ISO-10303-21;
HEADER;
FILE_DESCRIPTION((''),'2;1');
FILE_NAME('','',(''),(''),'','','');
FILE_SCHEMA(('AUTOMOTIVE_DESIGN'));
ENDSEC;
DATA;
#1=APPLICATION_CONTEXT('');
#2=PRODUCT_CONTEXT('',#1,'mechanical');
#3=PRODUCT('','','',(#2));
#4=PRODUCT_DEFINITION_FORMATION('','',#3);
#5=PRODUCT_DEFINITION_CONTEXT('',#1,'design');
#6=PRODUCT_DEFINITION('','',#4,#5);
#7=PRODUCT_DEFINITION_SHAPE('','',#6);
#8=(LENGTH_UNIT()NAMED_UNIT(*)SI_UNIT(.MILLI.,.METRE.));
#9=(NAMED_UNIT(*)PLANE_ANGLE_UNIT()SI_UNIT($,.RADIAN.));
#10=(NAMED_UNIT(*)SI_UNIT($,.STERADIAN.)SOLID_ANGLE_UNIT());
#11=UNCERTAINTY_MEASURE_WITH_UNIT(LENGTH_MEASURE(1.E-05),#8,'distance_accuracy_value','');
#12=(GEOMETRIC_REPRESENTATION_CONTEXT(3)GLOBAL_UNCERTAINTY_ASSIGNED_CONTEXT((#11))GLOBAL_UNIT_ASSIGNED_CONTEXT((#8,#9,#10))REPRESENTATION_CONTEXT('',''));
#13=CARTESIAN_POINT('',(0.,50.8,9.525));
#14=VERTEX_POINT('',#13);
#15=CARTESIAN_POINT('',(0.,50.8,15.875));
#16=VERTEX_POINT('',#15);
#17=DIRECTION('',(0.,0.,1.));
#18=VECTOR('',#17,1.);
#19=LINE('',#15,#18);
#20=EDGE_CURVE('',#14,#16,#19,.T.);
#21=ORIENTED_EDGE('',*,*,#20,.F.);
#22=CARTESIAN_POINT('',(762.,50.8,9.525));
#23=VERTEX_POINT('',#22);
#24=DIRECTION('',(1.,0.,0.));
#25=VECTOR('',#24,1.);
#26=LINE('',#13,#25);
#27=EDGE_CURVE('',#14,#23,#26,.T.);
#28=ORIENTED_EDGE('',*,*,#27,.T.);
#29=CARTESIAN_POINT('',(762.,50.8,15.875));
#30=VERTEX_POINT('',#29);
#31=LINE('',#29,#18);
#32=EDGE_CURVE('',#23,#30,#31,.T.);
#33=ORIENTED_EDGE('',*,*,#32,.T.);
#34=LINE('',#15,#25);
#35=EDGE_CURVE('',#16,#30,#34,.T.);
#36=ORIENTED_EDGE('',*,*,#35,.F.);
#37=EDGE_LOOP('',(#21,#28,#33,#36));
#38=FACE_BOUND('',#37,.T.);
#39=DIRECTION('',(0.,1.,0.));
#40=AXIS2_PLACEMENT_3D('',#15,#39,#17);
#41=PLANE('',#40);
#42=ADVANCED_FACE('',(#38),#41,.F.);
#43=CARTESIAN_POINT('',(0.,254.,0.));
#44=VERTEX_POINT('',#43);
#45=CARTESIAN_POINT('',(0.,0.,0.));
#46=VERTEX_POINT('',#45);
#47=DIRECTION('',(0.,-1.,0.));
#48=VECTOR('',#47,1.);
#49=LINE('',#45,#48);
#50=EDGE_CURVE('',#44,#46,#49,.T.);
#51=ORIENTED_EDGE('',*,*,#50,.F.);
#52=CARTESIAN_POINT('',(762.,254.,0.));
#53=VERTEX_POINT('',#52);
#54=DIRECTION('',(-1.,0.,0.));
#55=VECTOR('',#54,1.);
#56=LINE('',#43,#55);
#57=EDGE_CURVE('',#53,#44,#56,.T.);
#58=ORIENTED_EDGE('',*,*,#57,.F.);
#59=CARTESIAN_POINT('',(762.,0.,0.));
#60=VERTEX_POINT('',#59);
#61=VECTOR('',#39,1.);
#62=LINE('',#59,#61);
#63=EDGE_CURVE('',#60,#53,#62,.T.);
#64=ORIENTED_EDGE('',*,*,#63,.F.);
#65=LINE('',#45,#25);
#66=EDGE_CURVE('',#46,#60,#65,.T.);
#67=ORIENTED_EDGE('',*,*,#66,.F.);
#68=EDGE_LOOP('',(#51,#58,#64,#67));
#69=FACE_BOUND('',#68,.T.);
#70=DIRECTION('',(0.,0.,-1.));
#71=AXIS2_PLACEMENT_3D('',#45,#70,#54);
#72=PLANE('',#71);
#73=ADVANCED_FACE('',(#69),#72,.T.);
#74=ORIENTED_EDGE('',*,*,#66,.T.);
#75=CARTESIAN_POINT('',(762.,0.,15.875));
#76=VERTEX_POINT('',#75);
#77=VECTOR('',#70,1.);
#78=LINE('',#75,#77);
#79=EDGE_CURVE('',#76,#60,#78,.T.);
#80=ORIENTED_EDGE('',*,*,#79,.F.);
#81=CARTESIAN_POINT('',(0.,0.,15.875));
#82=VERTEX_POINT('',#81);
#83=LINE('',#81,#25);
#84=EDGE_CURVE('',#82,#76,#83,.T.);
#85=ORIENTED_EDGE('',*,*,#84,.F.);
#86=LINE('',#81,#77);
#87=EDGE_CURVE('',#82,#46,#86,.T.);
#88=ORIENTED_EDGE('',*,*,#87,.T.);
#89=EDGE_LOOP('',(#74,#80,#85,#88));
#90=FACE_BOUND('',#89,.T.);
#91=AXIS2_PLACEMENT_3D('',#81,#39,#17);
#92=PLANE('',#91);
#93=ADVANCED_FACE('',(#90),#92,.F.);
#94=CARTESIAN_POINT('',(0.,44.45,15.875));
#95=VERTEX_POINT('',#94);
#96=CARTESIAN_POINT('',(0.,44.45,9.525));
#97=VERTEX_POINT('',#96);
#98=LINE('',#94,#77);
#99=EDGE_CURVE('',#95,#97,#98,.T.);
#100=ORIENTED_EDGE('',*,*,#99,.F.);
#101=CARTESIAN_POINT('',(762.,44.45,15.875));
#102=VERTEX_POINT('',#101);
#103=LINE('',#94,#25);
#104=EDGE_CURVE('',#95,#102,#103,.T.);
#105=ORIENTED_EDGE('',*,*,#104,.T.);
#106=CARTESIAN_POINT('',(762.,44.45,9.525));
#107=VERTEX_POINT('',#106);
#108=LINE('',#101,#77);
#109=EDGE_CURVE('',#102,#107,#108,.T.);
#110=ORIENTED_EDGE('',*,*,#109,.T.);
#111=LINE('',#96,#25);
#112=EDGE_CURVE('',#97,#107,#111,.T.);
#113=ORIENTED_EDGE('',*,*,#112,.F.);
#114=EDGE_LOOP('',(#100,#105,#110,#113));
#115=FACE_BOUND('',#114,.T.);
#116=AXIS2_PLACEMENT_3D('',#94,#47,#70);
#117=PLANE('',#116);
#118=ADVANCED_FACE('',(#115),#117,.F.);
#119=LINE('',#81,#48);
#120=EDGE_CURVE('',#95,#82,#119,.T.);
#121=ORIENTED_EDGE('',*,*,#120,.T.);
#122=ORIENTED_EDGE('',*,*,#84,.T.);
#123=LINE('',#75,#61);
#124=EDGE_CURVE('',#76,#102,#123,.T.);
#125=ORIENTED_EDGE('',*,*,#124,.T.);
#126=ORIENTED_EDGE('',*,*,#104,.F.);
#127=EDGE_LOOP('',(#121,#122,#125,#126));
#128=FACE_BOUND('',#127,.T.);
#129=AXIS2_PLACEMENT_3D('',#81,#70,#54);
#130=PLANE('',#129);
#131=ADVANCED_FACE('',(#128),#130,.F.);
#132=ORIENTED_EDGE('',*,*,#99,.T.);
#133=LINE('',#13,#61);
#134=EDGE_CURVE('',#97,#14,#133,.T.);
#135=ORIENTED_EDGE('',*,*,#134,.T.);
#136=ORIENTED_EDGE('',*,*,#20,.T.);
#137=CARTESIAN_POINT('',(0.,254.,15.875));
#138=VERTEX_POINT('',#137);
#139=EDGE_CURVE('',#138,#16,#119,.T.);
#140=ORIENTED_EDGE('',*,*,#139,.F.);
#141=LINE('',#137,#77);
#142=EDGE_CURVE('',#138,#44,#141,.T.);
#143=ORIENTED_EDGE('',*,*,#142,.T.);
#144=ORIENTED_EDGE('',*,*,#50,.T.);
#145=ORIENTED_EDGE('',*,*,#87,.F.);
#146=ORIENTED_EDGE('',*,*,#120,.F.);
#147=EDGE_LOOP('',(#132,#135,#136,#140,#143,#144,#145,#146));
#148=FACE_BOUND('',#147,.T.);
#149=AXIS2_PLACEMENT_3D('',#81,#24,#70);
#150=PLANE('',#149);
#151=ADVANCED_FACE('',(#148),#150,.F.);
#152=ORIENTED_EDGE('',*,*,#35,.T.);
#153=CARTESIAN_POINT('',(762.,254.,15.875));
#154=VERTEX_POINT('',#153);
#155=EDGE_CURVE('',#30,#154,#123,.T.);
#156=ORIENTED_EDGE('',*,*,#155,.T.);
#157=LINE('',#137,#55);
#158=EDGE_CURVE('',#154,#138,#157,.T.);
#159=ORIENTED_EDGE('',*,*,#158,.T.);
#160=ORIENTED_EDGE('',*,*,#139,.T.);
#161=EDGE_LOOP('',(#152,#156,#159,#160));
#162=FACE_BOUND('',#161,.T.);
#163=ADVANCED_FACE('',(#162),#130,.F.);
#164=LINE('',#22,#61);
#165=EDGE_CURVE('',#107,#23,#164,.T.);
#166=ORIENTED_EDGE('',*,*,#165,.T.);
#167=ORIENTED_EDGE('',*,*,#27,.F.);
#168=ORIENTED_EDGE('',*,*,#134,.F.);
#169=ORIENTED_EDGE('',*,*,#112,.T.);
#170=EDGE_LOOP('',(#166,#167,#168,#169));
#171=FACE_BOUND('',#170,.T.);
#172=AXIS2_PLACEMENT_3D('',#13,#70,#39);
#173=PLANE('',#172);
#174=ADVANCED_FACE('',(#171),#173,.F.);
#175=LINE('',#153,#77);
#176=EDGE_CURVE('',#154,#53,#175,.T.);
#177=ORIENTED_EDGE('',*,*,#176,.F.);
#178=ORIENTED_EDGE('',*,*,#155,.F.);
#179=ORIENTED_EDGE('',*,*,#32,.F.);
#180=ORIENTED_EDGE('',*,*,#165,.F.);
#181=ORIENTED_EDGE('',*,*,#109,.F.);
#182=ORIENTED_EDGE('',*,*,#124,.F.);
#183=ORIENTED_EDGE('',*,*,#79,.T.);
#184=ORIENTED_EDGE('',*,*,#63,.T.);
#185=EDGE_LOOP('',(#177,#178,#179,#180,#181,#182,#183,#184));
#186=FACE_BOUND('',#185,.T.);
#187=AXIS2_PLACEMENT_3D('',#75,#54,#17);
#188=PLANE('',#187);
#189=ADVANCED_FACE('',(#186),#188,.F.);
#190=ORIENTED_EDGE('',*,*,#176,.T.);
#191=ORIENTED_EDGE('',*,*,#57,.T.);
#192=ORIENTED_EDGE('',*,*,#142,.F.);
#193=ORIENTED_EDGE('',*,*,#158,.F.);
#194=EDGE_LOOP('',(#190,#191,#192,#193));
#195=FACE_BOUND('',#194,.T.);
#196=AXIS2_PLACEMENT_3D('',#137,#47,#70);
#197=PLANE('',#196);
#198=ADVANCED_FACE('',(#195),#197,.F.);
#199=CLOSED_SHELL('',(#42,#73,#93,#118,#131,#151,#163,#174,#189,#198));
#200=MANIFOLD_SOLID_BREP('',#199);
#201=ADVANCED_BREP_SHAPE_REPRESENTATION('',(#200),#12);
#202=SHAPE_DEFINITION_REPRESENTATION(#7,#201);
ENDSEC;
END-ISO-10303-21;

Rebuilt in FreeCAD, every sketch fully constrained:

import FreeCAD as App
import Part
import Sketcher
from FreeCAD import Vector
Q = App.Units.Quantity


def add_polygon(sketch, points):
    """Adds a closed chain of lines whose ends are joined by coincident constraints."""
    first, n = sketch.GeometryCount, len(points)
    for a, b in zip(points, points[1:] + points[:1]):
        sketch.addGeometry(Part.LineSegment(App.Vector(*a, 0), App.Vector(*b, 0)), False)
    for i in range(n):
        sketch.addConstraint(Sketcher.Constraint("Coincident", first + i, 2, first + (i + 1) % n, 1))

doc = App.newDocument("Part")
body = doc.addObject("PartDesign::Body", "Body")

sketch1 = body.newObject("Sketcher::SketchObject", "Sketch")
sketch1.AttachmentSupport = (doc.getObject("XY_Plane"), [""])
sketch1.MapMode = "FlatFace"
add_polygon(sketch1, [(0, 254), (0, 0), (762, 0), (762, 254)])
sketch1.addConstraint(Sketcher.Constraint("Vertical", 0))
sketch1.addConstraint(Sketcher.Constraint("Horizontal", 1))
sketch1.addConstraint(Sketcher.Constraint("Vertical", 2))
sketch1.addConstraint(Sketcher.Constraint("Horizontal", 3))
sketch1.addConstraint(Sketcher.Constraint("Coincident", 0, 2, -1, 1))
sketch1.addConstraint(Sketcher.Constraint("DistanceX", 1, 1, 1, 2, Q("30 in")))
sketch1.addConstraint(Sketcher.Constraint("DistanceY", 0, 2, 0, 1, Q("10 in")))
pad1 = body.newObject("PartDesign::Pad", "Pad")
pad1.Profile = sketch1
pad1.Length = Q("0.625 in")

sketch2 = body.newObject("Sketcher::SketchObject", "Sketch001")
sketch2.AttachmentSupport = (doc.getObject("YZ_Plane"), [""])
sketch2.MapMode = "FlatFace"
sketch2.AttachmentOffset = App.Placement(Vector(0, 0, 30 * 25.4), App.Rotation())
add_polygon(sketch2, [(51, 16), (44, 16), (44, 10), (51, 10)])
sketch2.addConstraint(Sketcher.Constraint("Horizontal", 0))
sketch2.addConstraint(Sketcher.Constraint("Vertical", 1))
sketch2.addConstraint(Sketcher.Constraint("Horizontal", 2))
sketch2.addConstraint(Sketcher.Constraint("Vertical", 3))
sketch2.addConstraint(Sketcher.Constraint("Equal", 2, 1))
sketch2.addConstraint(Sketcher.Constraint("DistanceX", -1, 1, 2, 2, Q("2 in")))
sketch2.addConstraint(Sketcher.Constraint("DistanceX", 0, 2, 0, 1, Q("0.25 in")))
sketch2.addConstraint(Sketcher.Constraint("DistanceY", -1, 1, 0, 2, Q("0.625 in")))
pocket1 = body.newObject("PartDesign::Pocket", "Pocket")
pocket1.Profile = sketch2
pocket1.Type = "ThroughAll"

doc.recompute()
